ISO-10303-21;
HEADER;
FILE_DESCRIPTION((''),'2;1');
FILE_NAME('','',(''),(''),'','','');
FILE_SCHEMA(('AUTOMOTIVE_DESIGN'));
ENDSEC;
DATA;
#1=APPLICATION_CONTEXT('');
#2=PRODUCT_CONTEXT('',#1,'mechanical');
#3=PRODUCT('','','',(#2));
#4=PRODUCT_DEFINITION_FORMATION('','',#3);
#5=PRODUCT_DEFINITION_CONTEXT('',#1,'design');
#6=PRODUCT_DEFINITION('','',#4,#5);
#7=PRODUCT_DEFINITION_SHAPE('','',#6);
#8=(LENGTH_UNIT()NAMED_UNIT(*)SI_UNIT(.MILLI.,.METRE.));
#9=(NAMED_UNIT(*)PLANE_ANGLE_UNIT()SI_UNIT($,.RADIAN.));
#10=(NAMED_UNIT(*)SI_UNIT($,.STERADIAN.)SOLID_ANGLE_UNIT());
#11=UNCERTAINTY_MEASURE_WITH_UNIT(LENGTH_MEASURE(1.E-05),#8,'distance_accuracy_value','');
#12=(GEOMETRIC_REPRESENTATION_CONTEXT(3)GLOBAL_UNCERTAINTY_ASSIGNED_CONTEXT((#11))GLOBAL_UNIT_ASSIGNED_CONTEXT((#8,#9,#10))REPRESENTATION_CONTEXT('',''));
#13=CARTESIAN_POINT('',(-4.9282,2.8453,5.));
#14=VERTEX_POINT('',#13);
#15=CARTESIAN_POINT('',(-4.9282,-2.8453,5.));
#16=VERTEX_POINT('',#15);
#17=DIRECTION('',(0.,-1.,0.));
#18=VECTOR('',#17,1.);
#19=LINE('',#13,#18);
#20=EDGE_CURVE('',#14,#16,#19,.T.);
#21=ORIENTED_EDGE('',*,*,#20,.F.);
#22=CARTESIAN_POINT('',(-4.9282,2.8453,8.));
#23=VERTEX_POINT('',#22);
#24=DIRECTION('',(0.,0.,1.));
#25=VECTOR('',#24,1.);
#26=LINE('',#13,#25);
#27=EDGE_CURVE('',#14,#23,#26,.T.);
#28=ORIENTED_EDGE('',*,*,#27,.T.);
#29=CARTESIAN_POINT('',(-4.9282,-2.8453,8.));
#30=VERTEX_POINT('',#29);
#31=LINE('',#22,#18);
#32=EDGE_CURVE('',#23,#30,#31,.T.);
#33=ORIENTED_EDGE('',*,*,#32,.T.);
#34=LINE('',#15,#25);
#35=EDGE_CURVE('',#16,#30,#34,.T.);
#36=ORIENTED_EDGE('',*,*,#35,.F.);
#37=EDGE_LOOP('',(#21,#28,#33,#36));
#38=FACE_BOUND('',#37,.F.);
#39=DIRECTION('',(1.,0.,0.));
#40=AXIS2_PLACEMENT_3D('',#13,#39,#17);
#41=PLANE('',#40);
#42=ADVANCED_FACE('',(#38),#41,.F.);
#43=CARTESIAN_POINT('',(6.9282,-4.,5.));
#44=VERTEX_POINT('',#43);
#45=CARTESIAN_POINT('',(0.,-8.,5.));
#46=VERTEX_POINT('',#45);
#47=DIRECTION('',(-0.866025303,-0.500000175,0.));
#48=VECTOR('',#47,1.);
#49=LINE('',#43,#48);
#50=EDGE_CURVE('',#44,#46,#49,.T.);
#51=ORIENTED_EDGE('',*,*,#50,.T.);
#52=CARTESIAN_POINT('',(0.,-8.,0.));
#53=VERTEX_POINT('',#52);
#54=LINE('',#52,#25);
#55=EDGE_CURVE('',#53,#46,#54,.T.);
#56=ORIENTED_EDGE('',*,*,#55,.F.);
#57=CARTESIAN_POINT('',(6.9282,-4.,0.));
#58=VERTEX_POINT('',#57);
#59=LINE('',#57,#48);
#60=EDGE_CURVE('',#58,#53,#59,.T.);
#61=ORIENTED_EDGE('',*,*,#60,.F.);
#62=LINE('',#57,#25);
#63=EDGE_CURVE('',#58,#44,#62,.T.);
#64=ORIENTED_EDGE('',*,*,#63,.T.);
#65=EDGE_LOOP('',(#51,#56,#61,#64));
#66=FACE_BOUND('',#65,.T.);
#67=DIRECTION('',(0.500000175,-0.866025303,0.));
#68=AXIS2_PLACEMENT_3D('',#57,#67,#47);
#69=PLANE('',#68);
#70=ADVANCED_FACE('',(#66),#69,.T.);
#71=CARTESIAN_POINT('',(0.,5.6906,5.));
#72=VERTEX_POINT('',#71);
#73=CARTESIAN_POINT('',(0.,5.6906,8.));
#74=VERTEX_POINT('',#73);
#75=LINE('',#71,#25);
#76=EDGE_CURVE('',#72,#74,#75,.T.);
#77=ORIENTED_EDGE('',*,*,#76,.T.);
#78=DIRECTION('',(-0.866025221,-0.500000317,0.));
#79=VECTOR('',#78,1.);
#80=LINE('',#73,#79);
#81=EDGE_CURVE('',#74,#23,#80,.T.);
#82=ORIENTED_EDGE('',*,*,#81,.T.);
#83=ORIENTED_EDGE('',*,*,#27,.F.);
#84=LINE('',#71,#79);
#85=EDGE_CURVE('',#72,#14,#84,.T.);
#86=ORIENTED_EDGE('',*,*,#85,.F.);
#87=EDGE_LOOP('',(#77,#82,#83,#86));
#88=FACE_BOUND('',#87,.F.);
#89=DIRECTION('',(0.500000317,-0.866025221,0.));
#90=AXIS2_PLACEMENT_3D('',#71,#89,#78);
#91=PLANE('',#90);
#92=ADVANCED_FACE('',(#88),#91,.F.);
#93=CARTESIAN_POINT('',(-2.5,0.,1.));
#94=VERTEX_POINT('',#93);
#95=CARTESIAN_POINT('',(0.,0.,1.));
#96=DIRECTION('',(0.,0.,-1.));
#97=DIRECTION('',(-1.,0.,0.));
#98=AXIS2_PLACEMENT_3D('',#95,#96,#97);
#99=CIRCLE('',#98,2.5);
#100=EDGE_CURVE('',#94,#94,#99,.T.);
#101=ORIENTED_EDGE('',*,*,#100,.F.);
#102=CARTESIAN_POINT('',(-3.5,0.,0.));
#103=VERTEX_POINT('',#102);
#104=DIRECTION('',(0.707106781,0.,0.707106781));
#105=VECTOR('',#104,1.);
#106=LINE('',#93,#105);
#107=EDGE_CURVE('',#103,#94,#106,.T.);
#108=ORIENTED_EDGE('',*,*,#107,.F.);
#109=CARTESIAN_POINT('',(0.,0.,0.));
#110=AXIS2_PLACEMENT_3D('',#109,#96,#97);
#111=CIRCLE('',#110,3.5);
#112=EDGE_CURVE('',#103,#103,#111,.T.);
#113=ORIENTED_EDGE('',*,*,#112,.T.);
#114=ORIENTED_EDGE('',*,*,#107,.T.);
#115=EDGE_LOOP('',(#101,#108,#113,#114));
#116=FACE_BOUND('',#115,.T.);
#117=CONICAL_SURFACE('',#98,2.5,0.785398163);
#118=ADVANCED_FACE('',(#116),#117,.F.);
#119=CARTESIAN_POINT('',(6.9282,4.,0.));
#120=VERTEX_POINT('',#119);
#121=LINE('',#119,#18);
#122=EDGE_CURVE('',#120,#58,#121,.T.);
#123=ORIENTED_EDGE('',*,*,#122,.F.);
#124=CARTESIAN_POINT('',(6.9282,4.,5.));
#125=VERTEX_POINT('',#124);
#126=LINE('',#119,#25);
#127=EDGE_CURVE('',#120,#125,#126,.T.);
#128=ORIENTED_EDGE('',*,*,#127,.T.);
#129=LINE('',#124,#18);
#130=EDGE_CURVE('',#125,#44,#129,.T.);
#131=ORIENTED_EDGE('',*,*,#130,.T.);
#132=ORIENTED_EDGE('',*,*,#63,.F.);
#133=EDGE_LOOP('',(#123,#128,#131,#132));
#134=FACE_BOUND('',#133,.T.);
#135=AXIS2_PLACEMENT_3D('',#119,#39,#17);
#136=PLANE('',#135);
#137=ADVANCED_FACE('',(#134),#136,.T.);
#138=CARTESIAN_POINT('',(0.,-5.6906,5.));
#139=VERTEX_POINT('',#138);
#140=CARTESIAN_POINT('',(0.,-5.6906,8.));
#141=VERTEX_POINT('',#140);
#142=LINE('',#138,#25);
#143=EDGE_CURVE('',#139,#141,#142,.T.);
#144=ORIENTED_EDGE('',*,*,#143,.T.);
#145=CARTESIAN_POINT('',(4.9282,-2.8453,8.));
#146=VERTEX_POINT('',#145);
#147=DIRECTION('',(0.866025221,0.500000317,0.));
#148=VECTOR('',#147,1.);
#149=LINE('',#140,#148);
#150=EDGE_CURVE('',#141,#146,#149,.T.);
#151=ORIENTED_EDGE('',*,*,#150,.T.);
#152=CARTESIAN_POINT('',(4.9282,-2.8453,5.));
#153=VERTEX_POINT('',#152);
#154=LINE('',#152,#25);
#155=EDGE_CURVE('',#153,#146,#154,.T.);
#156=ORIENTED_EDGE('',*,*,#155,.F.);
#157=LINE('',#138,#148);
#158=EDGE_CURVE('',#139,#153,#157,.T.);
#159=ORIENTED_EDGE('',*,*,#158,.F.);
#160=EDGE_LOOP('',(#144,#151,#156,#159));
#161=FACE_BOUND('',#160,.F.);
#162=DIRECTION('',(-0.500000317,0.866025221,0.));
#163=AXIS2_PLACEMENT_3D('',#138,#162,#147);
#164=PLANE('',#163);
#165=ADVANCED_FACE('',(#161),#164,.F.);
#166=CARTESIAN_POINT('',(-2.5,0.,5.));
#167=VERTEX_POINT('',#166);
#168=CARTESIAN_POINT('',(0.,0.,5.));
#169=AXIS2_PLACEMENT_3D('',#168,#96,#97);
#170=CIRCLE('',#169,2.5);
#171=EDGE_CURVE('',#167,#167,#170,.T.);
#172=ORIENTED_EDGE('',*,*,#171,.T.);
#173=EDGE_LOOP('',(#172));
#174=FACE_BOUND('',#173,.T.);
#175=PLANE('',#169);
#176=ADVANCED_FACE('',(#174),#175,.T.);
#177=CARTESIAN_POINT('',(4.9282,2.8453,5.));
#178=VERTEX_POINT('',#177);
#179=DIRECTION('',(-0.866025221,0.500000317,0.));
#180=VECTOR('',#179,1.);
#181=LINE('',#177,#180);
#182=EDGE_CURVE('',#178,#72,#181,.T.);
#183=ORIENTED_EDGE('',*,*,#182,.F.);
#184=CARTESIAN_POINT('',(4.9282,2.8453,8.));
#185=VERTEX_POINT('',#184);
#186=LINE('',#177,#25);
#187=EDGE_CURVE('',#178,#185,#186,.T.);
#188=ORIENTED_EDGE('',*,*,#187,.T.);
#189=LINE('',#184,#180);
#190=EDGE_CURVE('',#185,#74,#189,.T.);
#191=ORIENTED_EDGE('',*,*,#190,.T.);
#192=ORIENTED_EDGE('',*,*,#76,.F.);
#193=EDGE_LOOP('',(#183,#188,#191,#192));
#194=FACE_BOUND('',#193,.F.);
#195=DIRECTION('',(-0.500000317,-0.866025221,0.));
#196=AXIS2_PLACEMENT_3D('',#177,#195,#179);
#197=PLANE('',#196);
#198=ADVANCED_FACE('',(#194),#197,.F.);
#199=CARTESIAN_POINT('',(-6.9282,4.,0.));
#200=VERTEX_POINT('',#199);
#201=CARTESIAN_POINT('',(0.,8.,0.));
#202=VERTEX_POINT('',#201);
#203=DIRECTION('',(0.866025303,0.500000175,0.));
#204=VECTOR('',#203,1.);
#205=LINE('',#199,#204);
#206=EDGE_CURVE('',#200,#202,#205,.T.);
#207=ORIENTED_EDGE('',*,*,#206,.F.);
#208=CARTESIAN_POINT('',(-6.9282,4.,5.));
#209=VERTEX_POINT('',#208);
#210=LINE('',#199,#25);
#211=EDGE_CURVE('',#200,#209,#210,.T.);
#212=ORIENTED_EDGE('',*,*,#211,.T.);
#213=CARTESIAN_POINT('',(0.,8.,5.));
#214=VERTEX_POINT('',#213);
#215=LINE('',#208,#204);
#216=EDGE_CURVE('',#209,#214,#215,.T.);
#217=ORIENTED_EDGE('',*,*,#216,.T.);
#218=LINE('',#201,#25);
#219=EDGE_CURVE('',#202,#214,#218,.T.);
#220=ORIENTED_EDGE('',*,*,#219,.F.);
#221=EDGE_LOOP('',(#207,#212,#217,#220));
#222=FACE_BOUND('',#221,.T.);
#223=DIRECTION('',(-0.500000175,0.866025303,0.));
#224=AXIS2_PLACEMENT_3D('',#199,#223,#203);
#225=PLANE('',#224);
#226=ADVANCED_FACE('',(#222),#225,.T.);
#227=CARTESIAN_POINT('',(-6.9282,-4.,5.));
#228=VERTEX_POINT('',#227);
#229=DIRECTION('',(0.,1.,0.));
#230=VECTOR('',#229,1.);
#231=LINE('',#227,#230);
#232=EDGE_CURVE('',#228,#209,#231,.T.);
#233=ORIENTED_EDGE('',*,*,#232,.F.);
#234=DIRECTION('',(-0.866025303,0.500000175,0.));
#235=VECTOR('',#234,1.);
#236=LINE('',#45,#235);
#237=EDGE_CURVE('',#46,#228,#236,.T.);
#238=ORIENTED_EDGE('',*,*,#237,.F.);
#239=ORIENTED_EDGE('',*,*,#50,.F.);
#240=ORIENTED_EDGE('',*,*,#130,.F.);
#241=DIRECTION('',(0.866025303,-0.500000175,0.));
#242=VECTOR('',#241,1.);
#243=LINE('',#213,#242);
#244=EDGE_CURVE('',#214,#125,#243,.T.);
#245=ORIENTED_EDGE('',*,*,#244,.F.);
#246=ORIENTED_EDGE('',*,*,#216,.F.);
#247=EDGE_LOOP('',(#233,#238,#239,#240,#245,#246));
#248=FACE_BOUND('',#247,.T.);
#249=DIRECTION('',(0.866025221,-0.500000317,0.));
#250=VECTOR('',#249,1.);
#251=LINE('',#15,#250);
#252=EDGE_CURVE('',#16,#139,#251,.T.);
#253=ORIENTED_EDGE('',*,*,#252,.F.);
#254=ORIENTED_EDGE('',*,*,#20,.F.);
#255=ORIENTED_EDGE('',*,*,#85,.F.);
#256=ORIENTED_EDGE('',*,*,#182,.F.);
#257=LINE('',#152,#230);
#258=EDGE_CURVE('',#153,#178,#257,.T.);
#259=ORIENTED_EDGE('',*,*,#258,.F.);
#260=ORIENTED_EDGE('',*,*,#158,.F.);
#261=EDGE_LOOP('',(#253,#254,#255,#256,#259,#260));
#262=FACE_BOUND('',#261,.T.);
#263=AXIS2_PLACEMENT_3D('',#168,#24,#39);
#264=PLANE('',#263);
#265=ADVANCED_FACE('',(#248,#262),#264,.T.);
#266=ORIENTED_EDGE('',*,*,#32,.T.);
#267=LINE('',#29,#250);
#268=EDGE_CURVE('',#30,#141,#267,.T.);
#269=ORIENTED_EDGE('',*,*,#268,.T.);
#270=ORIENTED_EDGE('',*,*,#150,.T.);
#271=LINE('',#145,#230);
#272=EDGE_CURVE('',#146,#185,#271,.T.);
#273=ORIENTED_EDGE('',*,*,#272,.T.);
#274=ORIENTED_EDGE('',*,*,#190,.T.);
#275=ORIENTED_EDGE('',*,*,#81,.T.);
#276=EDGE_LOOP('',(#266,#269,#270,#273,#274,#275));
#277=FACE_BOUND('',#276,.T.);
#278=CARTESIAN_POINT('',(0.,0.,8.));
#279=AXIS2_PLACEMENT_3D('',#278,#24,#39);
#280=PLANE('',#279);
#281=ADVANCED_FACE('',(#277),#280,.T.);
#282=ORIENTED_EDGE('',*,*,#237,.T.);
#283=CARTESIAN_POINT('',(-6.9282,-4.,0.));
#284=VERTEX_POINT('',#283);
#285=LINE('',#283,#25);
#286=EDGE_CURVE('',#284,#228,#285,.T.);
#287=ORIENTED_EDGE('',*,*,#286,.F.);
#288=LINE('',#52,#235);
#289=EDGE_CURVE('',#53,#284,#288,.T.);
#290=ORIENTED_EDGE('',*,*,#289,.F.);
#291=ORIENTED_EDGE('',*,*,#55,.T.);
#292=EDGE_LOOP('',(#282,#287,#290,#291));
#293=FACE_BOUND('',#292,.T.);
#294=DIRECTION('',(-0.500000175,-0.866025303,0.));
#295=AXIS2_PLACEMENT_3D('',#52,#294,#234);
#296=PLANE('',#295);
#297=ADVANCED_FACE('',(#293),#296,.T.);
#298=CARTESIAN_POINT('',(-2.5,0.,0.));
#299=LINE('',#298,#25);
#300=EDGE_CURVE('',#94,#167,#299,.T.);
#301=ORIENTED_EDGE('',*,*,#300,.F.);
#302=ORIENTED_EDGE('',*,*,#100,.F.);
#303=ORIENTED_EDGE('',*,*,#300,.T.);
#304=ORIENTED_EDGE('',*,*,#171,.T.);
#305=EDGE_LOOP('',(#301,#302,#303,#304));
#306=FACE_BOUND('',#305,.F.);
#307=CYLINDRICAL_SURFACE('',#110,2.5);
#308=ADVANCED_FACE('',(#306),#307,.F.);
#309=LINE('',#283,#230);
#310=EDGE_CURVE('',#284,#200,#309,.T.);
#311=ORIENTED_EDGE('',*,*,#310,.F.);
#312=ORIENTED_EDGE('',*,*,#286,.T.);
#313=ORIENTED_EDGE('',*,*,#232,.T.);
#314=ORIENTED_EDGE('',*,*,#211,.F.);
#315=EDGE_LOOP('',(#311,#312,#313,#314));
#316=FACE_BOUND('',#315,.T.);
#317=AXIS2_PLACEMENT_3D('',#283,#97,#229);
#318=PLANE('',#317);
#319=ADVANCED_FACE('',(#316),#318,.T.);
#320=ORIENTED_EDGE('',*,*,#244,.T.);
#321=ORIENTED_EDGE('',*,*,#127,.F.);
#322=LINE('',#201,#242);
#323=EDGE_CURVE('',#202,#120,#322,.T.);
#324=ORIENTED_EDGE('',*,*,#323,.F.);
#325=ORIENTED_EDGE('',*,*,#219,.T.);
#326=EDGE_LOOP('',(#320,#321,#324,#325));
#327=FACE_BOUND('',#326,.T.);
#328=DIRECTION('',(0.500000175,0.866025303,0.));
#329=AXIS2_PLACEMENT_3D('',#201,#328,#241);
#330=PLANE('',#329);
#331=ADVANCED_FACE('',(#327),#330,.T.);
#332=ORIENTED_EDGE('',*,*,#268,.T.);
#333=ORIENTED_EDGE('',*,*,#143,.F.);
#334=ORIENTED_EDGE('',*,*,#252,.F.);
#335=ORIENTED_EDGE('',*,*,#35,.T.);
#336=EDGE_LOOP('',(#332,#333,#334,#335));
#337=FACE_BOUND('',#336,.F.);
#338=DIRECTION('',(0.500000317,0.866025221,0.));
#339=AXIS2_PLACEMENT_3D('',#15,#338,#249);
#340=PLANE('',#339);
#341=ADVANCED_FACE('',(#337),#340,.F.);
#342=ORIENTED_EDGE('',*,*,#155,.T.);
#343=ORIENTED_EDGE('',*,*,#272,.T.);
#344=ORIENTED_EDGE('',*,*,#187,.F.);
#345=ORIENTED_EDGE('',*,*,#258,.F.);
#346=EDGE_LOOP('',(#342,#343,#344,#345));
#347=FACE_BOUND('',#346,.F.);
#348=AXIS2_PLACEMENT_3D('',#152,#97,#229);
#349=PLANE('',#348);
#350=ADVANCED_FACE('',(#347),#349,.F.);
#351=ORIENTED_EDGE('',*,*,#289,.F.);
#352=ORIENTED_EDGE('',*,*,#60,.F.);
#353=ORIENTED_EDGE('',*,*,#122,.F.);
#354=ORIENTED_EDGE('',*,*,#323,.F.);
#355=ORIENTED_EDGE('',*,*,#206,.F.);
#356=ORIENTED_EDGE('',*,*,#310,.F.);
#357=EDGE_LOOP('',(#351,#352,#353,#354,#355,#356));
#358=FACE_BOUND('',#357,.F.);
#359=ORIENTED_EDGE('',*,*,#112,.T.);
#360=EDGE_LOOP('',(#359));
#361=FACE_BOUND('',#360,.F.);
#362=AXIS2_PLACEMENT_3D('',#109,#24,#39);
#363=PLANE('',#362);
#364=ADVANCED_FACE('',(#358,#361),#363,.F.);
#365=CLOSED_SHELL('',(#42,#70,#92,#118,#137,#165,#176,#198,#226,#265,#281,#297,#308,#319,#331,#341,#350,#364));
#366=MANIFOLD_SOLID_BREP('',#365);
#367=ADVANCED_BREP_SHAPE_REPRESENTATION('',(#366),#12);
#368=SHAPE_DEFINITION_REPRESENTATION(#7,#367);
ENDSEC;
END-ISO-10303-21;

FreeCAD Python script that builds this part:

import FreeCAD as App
import Part
import Sketcher
from FreeCAD import Vector
Q = App.Units.Quantity


def edges_at(feature, points):
    """Names of the edges that pass closest to the given points."""
    edges = feature.Shape.Edges
    near = lambda p: min(range(len(edges)), key=lambda i: edges[i].distToShape(Part.Vertex(*p))[0])
    return sorted({f"Edge{near(p) + 1}" for p in points})


def add_polygon(sketch, points):
    """Adds a closed chain of lines whose ends are joined by coincident constraints."""
    first, n = sketch.GeometryCount, len(points)
    for a, b in zip(points, points[1:] + points[:1]):
        sketch.addGeometry(Part.LineSegment(App.Vector(*a, 0), App.Vector(*b, 0)), False)
    for i in range(n):
        sketch.addConstraint(Sketcher.Constraint("Coincident", first + i, 2, first + (i + 1) % n, 1))

doc = App.newDocument("Part")
body = doc.addObject("PartDesign::Body", "Body")

# Sketch on XY plane
sketch1 = doc.addObject("Sketcher::SketchObject", "Sketch")
body.addObject(sketch1)
sketch1.AttachmentSupport = (doc.XY_Plane, [""])
sketch1.MapMode = "FlatFace"
add_polygon(sketch1, [(6.9282, 4), (0, 8), (-6.9282, 4), (-6.9282, -4), (0, -8), (6.9282, -4)])  # lines 0-5
sketch1.addConstraint([
    Sketcher.Constraint("Vertical", 2),
    Sketcher.Constraint("Vertical", 5),
    Sketcher.Constraint("Symmetric", 0, 2, 3, 2, -1, 1),
    Sketcher.Constraint("Symmetric", 1, 2, 4, 2, -1, 1),
    Sketcher.Constraint("PointOnObject", 0, 2, -2),
    Sketcher.Constraint("Parallel", 0, 3),
    Sketcher.Constraint("Horizontal", 2, 2, 4, 2),
    Sketcher.Constraint("DistanceY", 2, 2, 2, 1, Q("8 mm")),
    Sketcher.Constraint("Distance", 0, Q("8 mm")),
    Sketcher.Constraint("DistanceY", -1, 1, 0, 2, Q("8 mm")),
])
pad1 = doc.addObject("PartDesign::Pad", "Pad")
body.addObject(pad1)
pad1.Profile = sketch1
pad1.Length = 5

# Sketch on XY plane
sketch2 = doc.addObject("Sketcher::SketchObject", "Sketch001")
body.addObject(sketch2)
sketch2.AttachmentSupport = (doc.XY_Plane, [""])
sketch2.MapMode = "FlatFace"
sketch2.AttachmentOffset = App.Placement(Vector(0, 0, 5), App.Rotation())
add_polygon(sketch2, [(0, 5.6906), (-4.9282, 2.8453), (-4.9282, -2.8453), (0, -5.6906), (4.9282, -2.8453), (4.9282, 2.8453)])  # lines 0-5
sketch2.addConstraint([
    Sketcher.Constraint("Vertical", 1),
    Sketcher.Constraint("Vertical", 4),
    Sketcher.Constraint("Symmetric", 0, 2, 3, 2, -1, 1),
    Sketcher.Constraint("Symmetric", 2, 2, 5, 2, -1, 1),
    Sketcher.Constraint("PointOnObject", 2, 2, -2),
    Sketcher.Constraint("Parallel", 2, 5),
    Sketcher.Constraint("Horizontal", 1, 2, 3, 2),
    Sketcher.Constraint("Angle", 0, Q("-150 deg")),
    Sketcher.Constraint("DistanceY", 1, 2, 1, 1, Q("5.6906 mm")),
    Sketcher.Constraint("DistanceY", 2, 2, 0, 2, Q("8.536 mm")),
])
pad2 = doc.addObject("PartDesign::Pad", "Pad001")
body.addObject(pad2)
pad2.Profile = sketch2
pad2.Length = 3

# Sketch on XY plane
sketch3 = doc.addObject("Sketcher::SketchObject", "Sketch002")
body.addObject(sketch3)
sketch3.AttachmentSupport = (doc.XY_Plane, [""])
sketch3.MapMode = "FlatFace"
sketch3.addGeometry(Part.Circle(Vector(0, 0, 0), Vector(0, 0, 1), 2.5), False)
sketch3.addConstraint([
    Sketcher.Constraint("Coincident", 0, 3, -1, 1),
    Sketcher.Constraint("Diameter", 0, Q("5 mm")),
])
pocket1 = doc.addObject("PartDesign::Pocket", "Pocket")
body.addObject(pocket1)
pocket1.Profile = sketch3
pocket1.Length = 5
pocket1.Reversed = True
doc.recompute()

chamfer = doc.addObject("PartDesign::Chamfer", "Chamfer")
body.addObject(chamfer)
chamfer.Base = (pocket1, edges_at(pocket1, [(2.5, 0, 0)]))
chamfer.Size = 1

doc.recompute()
